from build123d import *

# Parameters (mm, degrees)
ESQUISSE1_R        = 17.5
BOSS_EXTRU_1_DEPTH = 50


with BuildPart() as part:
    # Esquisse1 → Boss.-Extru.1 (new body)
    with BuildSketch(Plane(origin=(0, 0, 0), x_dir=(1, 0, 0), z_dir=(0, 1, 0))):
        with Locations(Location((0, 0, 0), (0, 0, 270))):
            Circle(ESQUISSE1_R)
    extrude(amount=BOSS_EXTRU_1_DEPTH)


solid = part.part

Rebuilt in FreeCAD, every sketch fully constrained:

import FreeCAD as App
import Part
import Sketcher
Q = App.Units.Quantity

doc = App.newDocument("Part")
body = doc.addObject("PartDesign::Body", "Body")

sketch1 = body.newObject("Sketcher::SketchObject", "Sketch")
sketch1.AttachmentSupport = (doc.getObject("XZ_Plane"), [""])
sketch1.MapMode = "FlatFace"
sketch1.addGeometry(Part.Circle(App.Vector(0, 0, 0), App.Vector(0, 0, 1), 18), False)
sketch1.addConstraint([
    Sketcher.Constraint("Coincident", 0, 3, -1, 1),
    Sketcher.Constraint("Diameter", 0, Q("35 mm")),
])
pad1 = body.newObject("PartDesign::Pad", "Pad")
pad1.Profile = sketch1
pad1.Length = 50
pad1.Reversed = True

doc.recompute()
